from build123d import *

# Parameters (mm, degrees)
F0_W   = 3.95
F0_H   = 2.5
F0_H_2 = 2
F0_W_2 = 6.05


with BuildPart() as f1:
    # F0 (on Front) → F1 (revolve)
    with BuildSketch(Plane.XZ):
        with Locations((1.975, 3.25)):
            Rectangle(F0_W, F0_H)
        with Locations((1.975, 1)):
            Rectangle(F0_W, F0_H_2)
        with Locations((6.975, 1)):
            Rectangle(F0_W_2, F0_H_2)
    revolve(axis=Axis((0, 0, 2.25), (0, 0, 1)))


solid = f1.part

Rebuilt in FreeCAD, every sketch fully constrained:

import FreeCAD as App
import Part
import Sketcher
Q = App.Units.Quantity

doc = App.newDocument("Part")
body = doc.addObject("PartDesign::Body", "Body")

sketch1 = body.newObject("Sketcher::SketchObject", "Sketch")
sketch1.AttachmentSupport = (doc.getObject("XZ_Plane"), [""])
sketch1.MapMode = "FlatFace"
sketch1.addGeometry([
    Part.LineSegment(App.Vector(0, 4.5, 0), App.Vector(0, 0, 0)),
    Part.LineSegment(App.Vector(0, 0, 0), App.Vector(10, 0, 0)),
    Part.LineSegment(App.Vector(10, 0, 0), App.Vector(10, 2, 0)),
    Part.LineSegment(App.Vector(10, 2, 0), App.Vector(4, 2, 0)),
    Part.LineSegment(App.Vector(4, 2, 0), App.Vector(4, 4.5, 0)),
    Part.LineSegment(App.Vector(4, 4.5, 0), App.Vector(0, 4.5, 0)),
], False)
sketch1.addConstraint([
    Sketcher.Constraint("Coincident", 0, 2, 1, 1),
    Sketcher.Constraint("Coincident", 1, 2, 2, 1),
    Sketcher.Constraint("Coincident", 2, 2, 3, 1),
    Sketcher.Constraint("Coincident", 3, 2, 4, 1),
    Sketcher.Constraint("Coincident", 4, 2, 5, 1),
    Sketcher.Constraint("Coincident", 5, 2, 0, 1),
    Sketcher.Constraint("Vertical", 0),
    Sketcher.Constraint("Horizontal", 1),
    Sketcher.Constraint("Vertical", 2),
    Sketcher.Constraint("Horizontal", 3),
    Sketcher.Constraint("Vertical", 4),
    Sketcher.Constraint("Horizontal", 5),
    Sketcher.Constraint("Coincident", 0, 2, -1, 1),
    Sketcher.Constraint("DistanceX", 1, 1, 1, 2, Q("10 mm")),
    Sketcher.Constraint("DistanceY", 2, 1, 2, 2, Q("2 mm")),
    Sketcher.Constraint("DistanceY", 0, 2, 0, 1, Q("4.5 mm")),
    Sketcher.Constraint("DistanceX", 3, 2, 3, 1, Q("6.05 mm")),
])
revolution = body.newObject("PartDesign::Revolution", "Revolution")
revolution.Profile = sketch1
revolution.ReferenceAxis = (sketch1, ["V_Axis"])
revolution.Angle = 360

doc.recompute()
